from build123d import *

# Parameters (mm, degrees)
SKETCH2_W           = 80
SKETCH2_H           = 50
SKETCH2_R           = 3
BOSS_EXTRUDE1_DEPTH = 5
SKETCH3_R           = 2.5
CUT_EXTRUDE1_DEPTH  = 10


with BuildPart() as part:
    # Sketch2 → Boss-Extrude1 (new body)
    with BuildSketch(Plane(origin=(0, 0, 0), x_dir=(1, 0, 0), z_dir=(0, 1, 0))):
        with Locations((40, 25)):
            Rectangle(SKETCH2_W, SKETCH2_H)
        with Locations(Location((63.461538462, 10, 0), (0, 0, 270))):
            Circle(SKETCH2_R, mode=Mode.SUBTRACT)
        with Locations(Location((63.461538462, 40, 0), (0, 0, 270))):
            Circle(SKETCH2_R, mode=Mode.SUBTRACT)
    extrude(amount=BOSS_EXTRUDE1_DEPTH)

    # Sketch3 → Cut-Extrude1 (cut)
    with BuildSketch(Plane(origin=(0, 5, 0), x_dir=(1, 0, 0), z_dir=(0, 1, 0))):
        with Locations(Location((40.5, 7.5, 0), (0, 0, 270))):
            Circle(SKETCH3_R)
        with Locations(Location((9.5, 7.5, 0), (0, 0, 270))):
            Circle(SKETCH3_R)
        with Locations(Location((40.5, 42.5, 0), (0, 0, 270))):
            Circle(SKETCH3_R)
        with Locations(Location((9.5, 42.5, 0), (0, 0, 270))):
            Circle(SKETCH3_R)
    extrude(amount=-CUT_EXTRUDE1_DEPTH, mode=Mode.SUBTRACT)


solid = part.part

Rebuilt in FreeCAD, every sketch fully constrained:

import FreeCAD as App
import Part
import Sketcher


def add_polygon(sketch, points):
    """Adds a closed chain of lines whose ends are joined by coincident constraints."""
    first, n = sketch.GeometryCount, len(points)
    for a, b in zip(points, points[1:] + points[:1]):
        sketch.addGeometry(Part.LineSegment(App.Vector(*a, 0), App.Vector(*b, 0)), False)
    for i in range(n):
        sketch.addConstraint(Sketcher.Constraint("Coincident", first + i, 2, first + (i + 1) % n, 1))

doc = App.newDocument("Part")
body = doc.addObject("PartDesign::Body", "Body")

# Sketch on XZ plane
sketch1 = body.newObject("Sketcher::SketchObject", "Sketch")
sketch1.AttachmentSupport = (doc.getObject("XZ_Plane"), [""])
sketch1.MapMode = "FlatFace"
add_polygon(sketch1, [(0, -50), (0, 0), (80, 0), (80, -50)])  # lines 0-3
sketch1.addGeometry(Part.Circle(App.Vector(63.5, -10, 0), App.Vector(0, 0, 1), 3), False)  # 4
sketch1.addGeometry(Part.Circle(App.Vector(63.5, -40, 0), App.Vector(0, 0, 1), 3), False)  # 5
sketch1.addConstraint([
    Sketcher.Constraint("Vertical", 0),
    Sketcher.Constraint("Horizontal", 1),
    Sketcher.Constraint("Vertical", 2),
    Sketcher.Constraint("Horizontal", 3),
    Sketcher.Constraint("Coincident", 0, 2, -1, 1),
    Sketcher.Constraint("Equal", 4, 5),
    Sketcher.Constraint("Vertical", 4, 3, 5, 3),
    Sketcher.Constraint("Diameter", 4, 6.0),
    Sketcher.Constraint("DistanceX", 1, 1, 1, 2, 80.0),
    Sketcher.Constraint("DistanceY", 0, 1, 0, 2, 50.0),
    Sketcher.Constraint("DistanceY", 4, 3, -1, 1, 10.0),
    Sketcher.Constraint("DistanceY", 5, 3, -1, 1, 40.0),
    Sketcher.Constraint("DistanceX", -1, 1, 4, 3, 63.461538),
])
pad1 = body.newObject("PartDesign::Pad", "Pad")
pad1.Profile = sketch1
pad1.Length = 5
pad1.Reversed = True

# Sketch on XZ plane
sketch2 = body.newObject("Sketcher::SketchObject", "Sketch001")
sketch2.AttachmentSupport = (doc.getObject("XZ_Plane"), [""])
sketch2.MapMode = "FlatFace"
sketch2.AttachmentOffset = App.Placement(App.Vector(0, 0, -5), App.Rotation())
sketch2.addGeometry([
    Part.Circle(App.Vector(40.5, -7.5, 0), App.Vector(0, 0, 1), 2.5),
    Part.Circle(App.Vector(9.5, -7.5, 0), App.Vector(0, 0, 1), 2.5),
    Part.Circle(App.Vector(40.5, -42.5, 0), App.Vector(0, 0, 1), 2.5),
    Part.Circle(App.Vector(9.5, -42.5, 0), App.Vector(0, 0, 1), 2.5),
], False)
sketch2.addConstraint([
    Sketcher.Constraint("Equal", 0, 1),
    Sketcher.Constraint("Equal", 1, 2),
    Sketcher.Constraint("Equal", 2, 3),
    Sketcher.Constraint("Horizontal", 0, 3, 1, 3),
    Sketcher.Constraint("Horizontal", 2, 3, 3, 3),
    Sketcher.Constraint("Vertical", 0, 3, 2, 3),
    Sketcher.Constraint("Vertical", 1, 3, 3, 3),
    Sketcher.Constraint("Diameter", 0, 5.0),
    Sketcher.Constraint("DistanceX", 1, 3, 0, 3, 31.0),
    Sketcher.Constraint("DistanceY", 2, 3, 0, 3, 35.0),
    Sketcher.Constraint("DistanceX", -1, 1, 0, 3, 40.5),
    Sketcher.Constraint("DistanceY", 0, 3, -1, 1, 7.5),
])
pocket1 = body.newObject("PartDesign::Pocket", "Pocket")
pocket1.Profile = sketch2
pocket1.Length = 10
pocket1.Reversed = True

doc.recompute()
